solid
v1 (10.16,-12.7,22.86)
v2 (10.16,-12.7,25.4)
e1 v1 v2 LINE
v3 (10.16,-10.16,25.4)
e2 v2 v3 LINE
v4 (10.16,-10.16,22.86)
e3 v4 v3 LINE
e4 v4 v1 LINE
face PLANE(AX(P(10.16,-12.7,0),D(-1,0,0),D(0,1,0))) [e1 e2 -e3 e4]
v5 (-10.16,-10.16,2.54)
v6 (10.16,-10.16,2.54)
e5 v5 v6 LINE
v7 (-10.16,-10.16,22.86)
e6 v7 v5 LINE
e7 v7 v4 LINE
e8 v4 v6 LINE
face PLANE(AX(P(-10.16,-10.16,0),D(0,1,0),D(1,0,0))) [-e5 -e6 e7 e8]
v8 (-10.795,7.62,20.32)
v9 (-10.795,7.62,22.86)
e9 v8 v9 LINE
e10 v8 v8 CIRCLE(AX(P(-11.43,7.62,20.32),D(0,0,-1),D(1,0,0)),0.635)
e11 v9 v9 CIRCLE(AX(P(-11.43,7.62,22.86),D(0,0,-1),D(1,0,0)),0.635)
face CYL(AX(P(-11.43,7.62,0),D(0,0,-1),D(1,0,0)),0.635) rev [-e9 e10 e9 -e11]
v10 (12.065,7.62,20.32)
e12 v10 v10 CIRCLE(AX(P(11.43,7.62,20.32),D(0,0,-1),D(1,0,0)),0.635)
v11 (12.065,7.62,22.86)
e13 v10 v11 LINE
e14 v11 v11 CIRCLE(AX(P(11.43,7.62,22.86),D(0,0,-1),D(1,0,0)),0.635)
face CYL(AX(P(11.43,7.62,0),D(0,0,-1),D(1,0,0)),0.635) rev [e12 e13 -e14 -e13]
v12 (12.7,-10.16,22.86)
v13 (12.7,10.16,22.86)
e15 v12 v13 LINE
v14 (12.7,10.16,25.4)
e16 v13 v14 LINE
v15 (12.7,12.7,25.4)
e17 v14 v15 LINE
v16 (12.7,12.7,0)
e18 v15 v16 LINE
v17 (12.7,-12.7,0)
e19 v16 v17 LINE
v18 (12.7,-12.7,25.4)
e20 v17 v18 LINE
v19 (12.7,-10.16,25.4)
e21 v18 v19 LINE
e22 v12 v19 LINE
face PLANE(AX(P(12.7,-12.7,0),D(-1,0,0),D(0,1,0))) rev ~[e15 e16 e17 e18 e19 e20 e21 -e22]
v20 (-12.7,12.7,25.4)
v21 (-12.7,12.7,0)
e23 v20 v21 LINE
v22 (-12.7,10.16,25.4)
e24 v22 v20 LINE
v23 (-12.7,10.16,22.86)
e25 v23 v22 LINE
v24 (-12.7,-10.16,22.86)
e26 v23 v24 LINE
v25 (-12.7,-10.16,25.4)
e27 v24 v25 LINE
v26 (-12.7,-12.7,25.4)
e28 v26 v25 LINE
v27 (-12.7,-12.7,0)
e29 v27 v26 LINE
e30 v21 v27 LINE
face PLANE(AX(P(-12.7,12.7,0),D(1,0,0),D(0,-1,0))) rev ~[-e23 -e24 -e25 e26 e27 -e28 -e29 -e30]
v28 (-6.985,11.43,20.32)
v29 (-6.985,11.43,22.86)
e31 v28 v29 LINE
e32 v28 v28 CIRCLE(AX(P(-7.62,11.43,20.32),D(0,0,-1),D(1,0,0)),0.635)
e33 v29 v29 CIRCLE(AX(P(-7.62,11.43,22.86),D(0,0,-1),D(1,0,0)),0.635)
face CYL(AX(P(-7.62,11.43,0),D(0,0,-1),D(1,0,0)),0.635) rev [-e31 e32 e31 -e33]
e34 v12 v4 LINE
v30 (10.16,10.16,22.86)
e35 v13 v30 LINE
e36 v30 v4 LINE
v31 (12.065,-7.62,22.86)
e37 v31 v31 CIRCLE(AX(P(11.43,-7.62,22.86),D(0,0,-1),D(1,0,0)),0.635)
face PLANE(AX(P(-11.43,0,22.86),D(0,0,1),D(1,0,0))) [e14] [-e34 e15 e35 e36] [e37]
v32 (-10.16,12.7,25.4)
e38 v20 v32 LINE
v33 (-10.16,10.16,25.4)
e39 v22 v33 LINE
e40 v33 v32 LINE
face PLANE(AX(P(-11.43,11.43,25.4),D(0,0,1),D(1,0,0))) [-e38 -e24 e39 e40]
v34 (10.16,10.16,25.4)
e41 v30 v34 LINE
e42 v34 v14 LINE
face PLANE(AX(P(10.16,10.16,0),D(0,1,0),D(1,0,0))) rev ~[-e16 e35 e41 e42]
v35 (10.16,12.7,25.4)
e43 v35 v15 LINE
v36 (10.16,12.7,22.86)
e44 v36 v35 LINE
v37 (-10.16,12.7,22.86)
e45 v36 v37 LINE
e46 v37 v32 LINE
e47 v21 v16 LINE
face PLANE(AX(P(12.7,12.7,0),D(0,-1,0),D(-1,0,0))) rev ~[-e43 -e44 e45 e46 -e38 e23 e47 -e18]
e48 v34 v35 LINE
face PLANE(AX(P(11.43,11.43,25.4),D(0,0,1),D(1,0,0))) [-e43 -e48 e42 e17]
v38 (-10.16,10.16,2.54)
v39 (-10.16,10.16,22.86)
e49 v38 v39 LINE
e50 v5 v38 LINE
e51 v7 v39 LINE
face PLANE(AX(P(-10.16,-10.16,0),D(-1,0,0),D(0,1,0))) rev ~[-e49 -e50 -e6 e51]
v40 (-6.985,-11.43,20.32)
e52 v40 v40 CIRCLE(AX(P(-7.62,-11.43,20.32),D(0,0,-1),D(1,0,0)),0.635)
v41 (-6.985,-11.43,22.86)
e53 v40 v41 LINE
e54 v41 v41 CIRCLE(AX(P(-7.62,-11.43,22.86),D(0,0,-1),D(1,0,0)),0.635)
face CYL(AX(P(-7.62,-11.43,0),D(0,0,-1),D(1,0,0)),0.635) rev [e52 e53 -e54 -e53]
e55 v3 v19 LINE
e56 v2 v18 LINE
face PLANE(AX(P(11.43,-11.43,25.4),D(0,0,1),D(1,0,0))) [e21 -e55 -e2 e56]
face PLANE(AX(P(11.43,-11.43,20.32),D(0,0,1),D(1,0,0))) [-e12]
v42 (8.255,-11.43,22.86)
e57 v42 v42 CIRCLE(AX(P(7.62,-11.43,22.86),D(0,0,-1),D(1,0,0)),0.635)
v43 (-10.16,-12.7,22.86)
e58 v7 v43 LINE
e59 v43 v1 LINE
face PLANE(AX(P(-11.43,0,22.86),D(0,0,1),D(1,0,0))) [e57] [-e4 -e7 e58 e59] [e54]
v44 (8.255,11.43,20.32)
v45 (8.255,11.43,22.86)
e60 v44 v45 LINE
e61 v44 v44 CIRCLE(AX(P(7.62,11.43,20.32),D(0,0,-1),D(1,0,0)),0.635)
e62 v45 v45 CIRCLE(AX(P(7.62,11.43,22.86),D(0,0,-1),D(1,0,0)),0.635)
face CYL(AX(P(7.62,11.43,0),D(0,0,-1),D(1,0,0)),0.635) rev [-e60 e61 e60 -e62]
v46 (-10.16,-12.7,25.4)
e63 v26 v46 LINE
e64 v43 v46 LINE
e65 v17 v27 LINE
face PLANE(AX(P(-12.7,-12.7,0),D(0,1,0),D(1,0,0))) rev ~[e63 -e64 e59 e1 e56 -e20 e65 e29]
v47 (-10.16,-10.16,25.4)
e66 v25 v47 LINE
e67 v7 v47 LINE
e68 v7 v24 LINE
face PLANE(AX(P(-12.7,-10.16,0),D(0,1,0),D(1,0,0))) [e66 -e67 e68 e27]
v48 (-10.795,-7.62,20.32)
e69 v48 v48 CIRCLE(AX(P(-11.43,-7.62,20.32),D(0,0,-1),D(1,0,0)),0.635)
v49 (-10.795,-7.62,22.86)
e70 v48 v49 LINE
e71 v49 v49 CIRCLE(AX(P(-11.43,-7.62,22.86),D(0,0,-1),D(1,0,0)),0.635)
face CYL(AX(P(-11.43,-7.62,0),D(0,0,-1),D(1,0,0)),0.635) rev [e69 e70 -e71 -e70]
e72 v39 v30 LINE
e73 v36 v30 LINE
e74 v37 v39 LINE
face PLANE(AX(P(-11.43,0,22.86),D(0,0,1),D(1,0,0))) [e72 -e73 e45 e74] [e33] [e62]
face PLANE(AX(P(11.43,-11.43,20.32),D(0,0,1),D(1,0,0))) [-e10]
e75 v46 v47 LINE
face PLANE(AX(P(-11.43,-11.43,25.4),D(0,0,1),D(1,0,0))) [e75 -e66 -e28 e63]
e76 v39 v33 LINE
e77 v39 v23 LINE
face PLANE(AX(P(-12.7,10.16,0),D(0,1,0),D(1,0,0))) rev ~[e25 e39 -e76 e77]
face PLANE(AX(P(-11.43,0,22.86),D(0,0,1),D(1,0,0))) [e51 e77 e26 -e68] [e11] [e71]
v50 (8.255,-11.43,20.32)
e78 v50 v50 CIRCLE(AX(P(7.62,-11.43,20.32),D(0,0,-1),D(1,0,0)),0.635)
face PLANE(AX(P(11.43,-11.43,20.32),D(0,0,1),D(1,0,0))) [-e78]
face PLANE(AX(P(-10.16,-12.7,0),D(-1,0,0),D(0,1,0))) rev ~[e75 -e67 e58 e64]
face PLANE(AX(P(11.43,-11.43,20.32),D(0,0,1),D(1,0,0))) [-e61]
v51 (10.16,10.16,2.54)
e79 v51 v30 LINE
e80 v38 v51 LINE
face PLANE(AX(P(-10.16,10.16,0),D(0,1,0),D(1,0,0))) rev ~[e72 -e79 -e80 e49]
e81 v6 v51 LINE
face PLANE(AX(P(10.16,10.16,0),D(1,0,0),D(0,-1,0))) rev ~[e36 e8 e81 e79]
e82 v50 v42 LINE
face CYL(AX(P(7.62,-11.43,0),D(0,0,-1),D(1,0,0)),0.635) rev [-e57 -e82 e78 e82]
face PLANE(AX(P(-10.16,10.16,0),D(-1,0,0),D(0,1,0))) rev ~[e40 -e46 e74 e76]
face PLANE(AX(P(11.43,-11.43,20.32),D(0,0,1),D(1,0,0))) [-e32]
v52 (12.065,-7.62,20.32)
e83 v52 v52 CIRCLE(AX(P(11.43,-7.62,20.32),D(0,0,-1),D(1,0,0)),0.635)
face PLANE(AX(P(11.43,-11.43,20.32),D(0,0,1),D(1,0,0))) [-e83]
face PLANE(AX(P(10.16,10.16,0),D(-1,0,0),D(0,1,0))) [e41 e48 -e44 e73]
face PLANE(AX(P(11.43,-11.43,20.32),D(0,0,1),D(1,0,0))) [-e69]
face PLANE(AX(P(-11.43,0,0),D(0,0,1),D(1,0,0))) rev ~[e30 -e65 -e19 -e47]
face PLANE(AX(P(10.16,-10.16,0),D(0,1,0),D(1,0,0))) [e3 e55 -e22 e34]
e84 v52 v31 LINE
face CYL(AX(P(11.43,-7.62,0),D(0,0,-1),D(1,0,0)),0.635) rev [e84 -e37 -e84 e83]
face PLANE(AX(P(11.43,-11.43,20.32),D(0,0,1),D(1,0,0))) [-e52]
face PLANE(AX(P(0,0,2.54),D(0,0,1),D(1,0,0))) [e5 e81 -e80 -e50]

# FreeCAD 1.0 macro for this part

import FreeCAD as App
import Part
import Sketcher

V = App.Vector
Q = App.Units.Quantity


def add_polygon(sketch, points):
    """Adds a closed chain of lines whose ends are joined by coincident constraints."""
    first, n = sketch.GeometryCount, len(points)
    for a, b in zip(points, points[1:] + points[:1]):
        sketch.addGeometry(Part.LineSegment(App.Vector(*a, 0), App.Vector(*b, 0)), False)
    for i in range(n):
        sketch.addConstraint(Sketcher.Constraint("Coincident", first + i, 2, first + (i + 1) % n, 1))

doc = App.newDocument("Part")
body = doc.addObject("PartDesign::Body", "Body")

# Sketch on XY plane
sketch1 = body.newObject("Sketcher::SketchObject", "Sketch")
sketch1.AttachmentSupport = (doc.getObject("XY_Plane"), [""])
sketch1.MapMode = "FlatFace"
add_polygon(sketch1, [(-10, 10), (-10, -10), (10, -10), (10, 10)])  # lines 0-3
sketch1.addConstraint([
    Sketcher.Constraint("Vertical", 0),
    Sketcher.Constraint("Horizontal", 1),
    Sketcher.Constraint("Vertical", 2),
    Sketcher.Constraint("Horizontal", 3),
    Sketcher.Constraint("Symmetric", 0, 2, 2, 2, -1, 1),
    Sketcher.Constraint("Equal", 3, 0),
    Sketcher.Constraint("DistanceX", 1, 1, 1, 2, Q("0.8 in")),
])
pad1 = body.newObject("PartDesign::Pad", "Pad")
pad1.Profile = sketch1
pad1.Length = Q("0.1 in")

# Sketch on XY plane
sketch2 = body.newObject("Sketcher::SketchObject", "Sketch001")
sketch2.AttachmentSupport = (doc.getObject("XY_Plane"), [""])
sketch2.MapMode = "FlatFace"
add_polygon(sketch2, [(-13, 13), (-13, -13), (13, -13), (13, 13)])  # lines 0-3
add_polygon(sketch2, [(10, -10), (-10, -10), (-10, 10), (10, 10)])  # lines 4-7
sketch2.addConstraint([
    Sketcher.Constraint("Vertical", 0),
    Sketcher.Constraint("Horizontal", 1),
    Sketcher.Constraint("Vertical", 2),
    Sketcher.Constraint("Horizontal", 3),
    Sketcher.Constraint("Horizontal", 4),
    Sketcher.Constraint("Vertical", 5),
    Sketcher.Constraint("Horizontal", 6),
    Sketcher.Constraint("Vertical", 7),
    Sketcher.Constraint("Symmetric", 0, 2, 2, 2, -1, 1),
    Sketcher.Constraint("Symmetric", 4, 2, 6, 2, -1, 1),
    Sketcher.Constraint("Equal", 3, 0),
    Sketcher.Constraint("Equal", 6, 5),
    Sketcher.Constraint("DistanceX", 1, 1, 1, 2, Q("1 in")),
    Sketcher.Constraint("DistanceX", 4, 2, 4, 1, Q("0.8 in")),
])
pad2 = body.newObject("PartDesign::Pad", "Pad001")
pad2.Profile = sketch2
pad2.Length = Q("0.9 in")

# Sketch on XY plane
sketch3 = body.newObject("Sketcher::SketchObject", "Sketch002")
sketch3.AttachmentSupport = (doc.getObject("XY_Plane"), [""])
sketch3.MapMode = "FlatFace"
add_polygon(sketch3, [(-12.7, -10.2), (-12.7, -12.7), (-10.2, -12.7), (-10.2, -10.2)])  # lines 0-3
add_polygon(sketch3, [(10.2, -10.2), (10.2, -12.7), (12.7, -12.7), (12.7, -10.2)])  # lines 4-7
add_polygon(sketch3, [(10.2, 12.7), (10.2, 10.2), (12.7, 10.2), (12.7, 12.7)])  # lines 8-11
add_polygon(sketch3, [(-12.7, 12.7), (-12.7, 10.2), (-10.2, 10.2), (-10.2, 12.7)])  # lines 12-15
sketch3.addConstraint([
    Sketcher.Constraint("Vertical", 0),
    Sketcher.Constraint("Horizontal", 1),
    Sketcher.Constraint("Vertical", 2),
    Sketcher.Constraint("Horizontal", 3),
    Sketcher.Constraint("Vertical", 4),
    Sketcher.Constraint("Horizontal", 5),
    Sketcher.Constraint("Vertical", 6),
    Sketcher.Constraint("Horizontal", 7),
    Sketcher.Constraint("Vertical", 8),
    Sketcher.Constraint("Horizontal", 9),
    Sketcher.Constraint("Vertical", 10),
    Sketcher.Constraint("Horizontal", 11),
    Sketcher.Constraint("Vertical", 12),
    Sketcher.Constraint("Horizontal", 13),
    Sketcher.Constraint("Vertical", 14),
    Sketcher.Constraint("Horizontal", 15),
    Sketcher.Constraint("Symmetric", 2, 2, 8, 2, -1, 1),
    Sketcher.Constraint("Symmetric", 0, 2, 10, 2, -1, 1),
    Sketcher.Constraint("Symmetric", 6, 2, 12, 2, -1, 1),
    Sketcher.Constraint("Symmetric", 4, 2, 14, 2, -1, 1),
    Sketcher.Constraint("Symmetric", 1, 2, 4, 2, -2),
    Sketcher.Constraint("Symmetric", 3, 2, 6, 2, -2),
    Sketcher.Constraint("Equal", 15, 0),
    Sketcher.Constraint("DistanceX", 1, 1, 1, 2, Q("0.1 in")),
    Sketcher.Constraint("DistanceX", 0, 2, 5, 2, Q("1 in")),
    Sketcher.Constraint("DistanceY", 5, 2, 10, 2, Q("1 in")),
])
pad3 = body.newObject("PartDesign::Pad", "Pad002")
pad3.Profile = sketch3
pad3.Length = Q("1 in")

# Sketch on XY plane
sketch4 = body.newObject("Sketcher::SketchObject", "Sketch003")
sketch4.AttachmentSupport = (doc.getObject("XY_Plane"), [""])
sketch4.MapMode = "FlatFace"
sketch4.addGeometry([
    Part.Circle(V(-7.6, -11.4, 0), V(0, 0, 1), 0.6),  # 0
    Part.Circle(V(7.6, -11.4, 0), V(0, 0, 1), 0.6),  # 1
    Part.Circle(V(11.4, -7.6, 0), V(0, 0, 1), 0.6),  # 2
    Part.Circle(V(11.4, 7.6, 0), V(0, 0, 1), 0.6),  # 3
    Part.Circle(V(7.6, 11.4, 0), V(0, 0, 1), 0.6),  # 4
    Part.Circle(V(-7.6, 11.4, 0), V(0, 0, 1), 0.6),  # 5
    Part.Circle(V(-11.4, 7.6, 0), V(0, 0, 1), 0.6),  # 6
    Part.Circle(V(-11.4, -7.6, 0), V(0, 0, 1), 0.6),  # 7
], False)
sketch4.addConstraint([
    Sketcher.Constraint("Equal", 0, 1),
    Sketcher.Constraint("Equal", 1, 2),
    Sketcher.Constraint("Equal", 2, 3),
    Sketcher.Constraint("Equal", 3, 4),
    Sketcher.Constraint("Equal", 4, 5),
    Sketcher.Constraint("Equal", 5, 6),
    Sketcher.Constraint("Equal", 6, 7),
    Sketcher.Constraint("Symmetric", 0, 3, 4, 3, -1, 1),
    Sketcher.Constraint("Symmetric", 1, 3, 5, 3, -1, 1),
    Sketcher.Constraint("Symmetric", 2, 3, 6, 3, -1, 1),
    Sketcher.Constraint("Symmetric", 3, 3, 7, 3, -1, 1),
    Sketcher.Constraint("Symmetric", 0, 3, 1, 3, -2),
    Sketcher.Constraint("Symmetric", 3, 3, 6, 3, -2),
    Sketcher.Constraint("Diameter", 0, Q("0.05 in")),
    Sketcher.Constraint("DistanceX", 0, 3, -1, 1, Q("0.3 in")),
    Sketcher.Constraint("DistanceY", 2, 3, -1, 1, Q("0.3 in")),
    Sketcher.Constraint("DistanceY", 1, 3, 4, 3, Q("0.9 in")),
    Sketcher.Constraint("DistanceX", 6, 3, 3, 3, Q("0.9 in")),
])
pocket1 = body.newObject("PartDesign::Pocket", "Pocket")
pocket1.Profile = sketch4
pocket1.Length = Q("1 in")
pocket1.Reversed = True

# Sketch on XY plane
sketch5 = body.newObject("Sketcher::SketchObject", "Sketch004")
sketch5.AttachmentSupport = (doc.getObject("XY_Plane"), [""])
sketch5.MapMode = "FlatFace"
add_polygon(sketch5, [(13, 13), (-13, 13), (-13, -13), (13, -13)])  # lines 0-3
add_polygon(sketch5, [(-10, -10), (-10, 10), (10, 10), (10, -10)])  # lines 4-7
sketch5.addConstraint([
    Sketcher.Constraint("Horizontal", 0),
    Sketcher.Constraint("Vertical", 1),
    Sketcher.Constraint("Horizontal", 2),
    Sketcher.Constraint("Vertical", 3),
    Sketcher.Constraint("Vertical", 4),
    Sketcher.Constraint("Horizontal", 5),
    Sketcher.Constraint("Vertical", 6),
    Sketcher.Constraint("Horizontal", 7),
    Sketcher.Constraint("Symmetric", 0, 2, 2, 2, -1, 1),
    Sketcher.Constraint("Symmetric", 4, 2, 6, 2, -1, 1),
    Sketcher.Constraint("Equal", 2, 1),
    Sketcher.Constraint("Equal", 7, 4),
    Sketcher.Constraint("DistanceX", 0, 2, 0, 1, Q("1 in")),
    Sketcher.Constraint("DistanceX", 5, 1, 5, 2, Q("0.8 in")),
])
pad4 = body.newObject("PartDesign::Pad", "Pad003")
pad4.Profile = sketch5
pad4.Length = Q("0.8 in")

doc.recompute()
